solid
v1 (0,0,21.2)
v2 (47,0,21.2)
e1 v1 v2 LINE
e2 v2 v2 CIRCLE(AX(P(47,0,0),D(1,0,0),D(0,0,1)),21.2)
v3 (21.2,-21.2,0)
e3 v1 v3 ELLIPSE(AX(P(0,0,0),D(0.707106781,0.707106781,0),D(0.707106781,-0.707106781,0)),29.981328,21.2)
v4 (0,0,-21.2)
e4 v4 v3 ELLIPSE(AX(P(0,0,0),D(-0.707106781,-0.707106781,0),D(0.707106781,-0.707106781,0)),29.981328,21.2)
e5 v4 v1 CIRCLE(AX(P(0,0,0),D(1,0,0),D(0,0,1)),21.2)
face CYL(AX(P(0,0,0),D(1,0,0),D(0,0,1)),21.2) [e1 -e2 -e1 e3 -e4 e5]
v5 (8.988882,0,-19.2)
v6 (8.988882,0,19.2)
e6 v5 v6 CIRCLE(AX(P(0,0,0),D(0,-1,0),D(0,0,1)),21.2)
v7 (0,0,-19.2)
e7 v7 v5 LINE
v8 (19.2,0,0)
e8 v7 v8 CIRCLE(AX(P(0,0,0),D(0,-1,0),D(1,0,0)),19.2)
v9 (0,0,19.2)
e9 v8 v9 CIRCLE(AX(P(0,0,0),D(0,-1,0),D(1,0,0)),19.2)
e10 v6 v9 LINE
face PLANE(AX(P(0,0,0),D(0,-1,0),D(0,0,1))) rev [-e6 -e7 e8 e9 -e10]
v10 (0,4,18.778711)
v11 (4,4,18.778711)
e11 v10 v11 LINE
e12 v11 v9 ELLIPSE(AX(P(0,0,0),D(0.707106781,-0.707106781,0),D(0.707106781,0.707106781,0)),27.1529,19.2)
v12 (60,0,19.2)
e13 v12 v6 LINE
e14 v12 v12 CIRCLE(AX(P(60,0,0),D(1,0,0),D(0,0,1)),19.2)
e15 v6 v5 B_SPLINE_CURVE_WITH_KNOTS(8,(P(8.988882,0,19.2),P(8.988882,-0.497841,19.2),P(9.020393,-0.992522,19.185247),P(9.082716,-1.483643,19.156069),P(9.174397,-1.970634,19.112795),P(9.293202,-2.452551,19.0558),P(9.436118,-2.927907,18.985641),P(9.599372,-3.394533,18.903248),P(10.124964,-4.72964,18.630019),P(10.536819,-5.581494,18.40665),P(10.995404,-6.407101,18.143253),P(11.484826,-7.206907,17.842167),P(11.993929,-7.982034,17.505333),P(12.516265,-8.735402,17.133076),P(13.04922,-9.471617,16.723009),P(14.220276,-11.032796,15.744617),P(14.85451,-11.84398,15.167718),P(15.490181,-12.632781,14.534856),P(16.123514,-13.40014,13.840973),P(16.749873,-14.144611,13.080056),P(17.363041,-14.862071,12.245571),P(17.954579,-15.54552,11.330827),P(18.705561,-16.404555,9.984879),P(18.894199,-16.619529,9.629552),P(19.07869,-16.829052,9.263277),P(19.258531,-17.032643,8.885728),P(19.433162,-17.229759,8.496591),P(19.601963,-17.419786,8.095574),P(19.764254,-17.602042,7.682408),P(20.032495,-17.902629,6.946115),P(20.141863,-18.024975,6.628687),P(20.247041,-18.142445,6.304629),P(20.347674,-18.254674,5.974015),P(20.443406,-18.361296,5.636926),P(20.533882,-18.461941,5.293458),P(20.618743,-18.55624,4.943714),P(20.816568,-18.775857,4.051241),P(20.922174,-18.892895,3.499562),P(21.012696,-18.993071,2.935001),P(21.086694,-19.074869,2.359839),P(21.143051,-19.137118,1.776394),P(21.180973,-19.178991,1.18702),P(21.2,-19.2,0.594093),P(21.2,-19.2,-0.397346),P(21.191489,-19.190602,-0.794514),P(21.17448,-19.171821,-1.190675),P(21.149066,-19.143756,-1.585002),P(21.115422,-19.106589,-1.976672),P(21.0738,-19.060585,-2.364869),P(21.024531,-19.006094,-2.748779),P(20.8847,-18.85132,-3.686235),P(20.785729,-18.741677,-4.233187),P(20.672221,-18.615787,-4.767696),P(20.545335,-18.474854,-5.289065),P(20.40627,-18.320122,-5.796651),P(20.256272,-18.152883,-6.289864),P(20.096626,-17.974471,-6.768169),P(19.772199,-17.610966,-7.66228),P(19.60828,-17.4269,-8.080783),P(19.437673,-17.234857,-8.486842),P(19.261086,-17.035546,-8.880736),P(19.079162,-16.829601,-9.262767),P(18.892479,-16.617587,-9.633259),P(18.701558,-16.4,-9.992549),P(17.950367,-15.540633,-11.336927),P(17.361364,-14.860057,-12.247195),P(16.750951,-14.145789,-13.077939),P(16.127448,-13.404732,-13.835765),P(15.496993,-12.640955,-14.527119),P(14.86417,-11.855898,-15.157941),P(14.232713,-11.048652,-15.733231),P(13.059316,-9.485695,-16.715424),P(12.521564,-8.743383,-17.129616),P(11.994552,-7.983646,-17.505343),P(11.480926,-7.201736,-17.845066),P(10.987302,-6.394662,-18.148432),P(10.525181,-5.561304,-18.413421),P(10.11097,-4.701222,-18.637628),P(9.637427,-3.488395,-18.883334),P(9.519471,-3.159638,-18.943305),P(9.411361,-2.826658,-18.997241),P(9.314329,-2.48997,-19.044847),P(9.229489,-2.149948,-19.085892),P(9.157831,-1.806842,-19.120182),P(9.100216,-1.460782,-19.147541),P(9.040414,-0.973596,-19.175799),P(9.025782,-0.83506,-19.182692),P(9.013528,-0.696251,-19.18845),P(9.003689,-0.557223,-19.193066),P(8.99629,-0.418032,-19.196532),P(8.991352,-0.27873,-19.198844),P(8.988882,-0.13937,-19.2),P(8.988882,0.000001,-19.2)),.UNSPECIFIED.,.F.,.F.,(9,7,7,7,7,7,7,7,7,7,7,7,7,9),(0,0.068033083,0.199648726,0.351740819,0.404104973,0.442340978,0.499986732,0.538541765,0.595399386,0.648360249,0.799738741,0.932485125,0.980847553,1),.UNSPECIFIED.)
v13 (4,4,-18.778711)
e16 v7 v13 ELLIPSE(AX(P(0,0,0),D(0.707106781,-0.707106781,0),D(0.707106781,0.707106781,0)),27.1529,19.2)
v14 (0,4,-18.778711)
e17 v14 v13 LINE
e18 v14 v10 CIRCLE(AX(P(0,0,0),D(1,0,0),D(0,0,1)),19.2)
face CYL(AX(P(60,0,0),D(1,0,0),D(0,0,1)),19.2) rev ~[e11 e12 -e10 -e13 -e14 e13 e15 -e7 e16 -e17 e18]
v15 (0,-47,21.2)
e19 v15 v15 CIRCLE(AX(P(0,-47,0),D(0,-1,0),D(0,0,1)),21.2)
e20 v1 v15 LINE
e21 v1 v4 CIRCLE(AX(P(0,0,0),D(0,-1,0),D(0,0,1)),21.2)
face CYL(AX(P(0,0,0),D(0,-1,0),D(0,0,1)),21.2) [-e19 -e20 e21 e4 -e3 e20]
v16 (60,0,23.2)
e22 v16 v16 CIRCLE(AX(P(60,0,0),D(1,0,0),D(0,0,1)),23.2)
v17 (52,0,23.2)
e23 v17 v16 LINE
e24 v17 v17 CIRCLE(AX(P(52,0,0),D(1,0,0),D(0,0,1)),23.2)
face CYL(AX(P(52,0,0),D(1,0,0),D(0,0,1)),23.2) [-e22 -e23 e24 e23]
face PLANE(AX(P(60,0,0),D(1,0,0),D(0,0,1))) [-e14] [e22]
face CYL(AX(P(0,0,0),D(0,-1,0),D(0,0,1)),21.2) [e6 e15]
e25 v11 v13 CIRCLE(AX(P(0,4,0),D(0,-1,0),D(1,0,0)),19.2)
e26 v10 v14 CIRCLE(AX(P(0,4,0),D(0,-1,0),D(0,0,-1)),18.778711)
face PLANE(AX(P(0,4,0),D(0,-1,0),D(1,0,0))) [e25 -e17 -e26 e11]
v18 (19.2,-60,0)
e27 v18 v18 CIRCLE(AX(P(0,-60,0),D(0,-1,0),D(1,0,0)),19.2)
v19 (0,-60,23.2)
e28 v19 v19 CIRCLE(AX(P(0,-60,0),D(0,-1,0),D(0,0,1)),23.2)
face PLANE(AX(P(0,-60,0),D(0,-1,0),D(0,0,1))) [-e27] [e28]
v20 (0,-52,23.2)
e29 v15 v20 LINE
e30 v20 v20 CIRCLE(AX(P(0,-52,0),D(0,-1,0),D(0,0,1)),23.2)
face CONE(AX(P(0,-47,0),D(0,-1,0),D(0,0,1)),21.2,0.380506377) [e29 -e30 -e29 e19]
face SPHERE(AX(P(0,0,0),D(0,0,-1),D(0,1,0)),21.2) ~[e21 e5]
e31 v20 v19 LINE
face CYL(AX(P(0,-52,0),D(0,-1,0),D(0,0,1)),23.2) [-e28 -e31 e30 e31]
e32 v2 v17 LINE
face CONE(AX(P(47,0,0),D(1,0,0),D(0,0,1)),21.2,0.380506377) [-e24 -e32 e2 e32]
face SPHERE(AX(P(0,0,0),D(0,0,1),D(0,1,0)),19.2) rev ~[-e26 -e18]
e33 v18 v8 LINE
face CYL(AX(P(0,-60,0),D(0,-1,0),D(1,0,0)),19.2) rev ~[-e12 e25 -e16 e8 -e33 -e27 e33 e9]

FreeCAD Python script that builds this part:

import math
import FreeCAD as App
import Part
import Sketcher

V = App.Vector


def add_polygon(sketch, points):
    """Adds a closed chain of lines whose ends are joined by coincident constraints."""
    first, n = sketch.GeometryCount, len(points)
    for a, b in zip(points, points[1:] + points[:1]):
        sketch.addGeometry(Part.LineSegment(App.Vector(*a, 0), App.Vector(*b, 0)), False)
    for i in range(n):
        sketch.addConstraint(Sketcher.Constraint("Coincident", first + i, 2, first + (i + 1) % n, 1))

doc = App.newDocument("Part")
params = doc.addObject("Spreadsheet::Sheet", "Params")
for row, (alias, value) in enumerate([
    ("sketch1_width", "60 mm"),
    ("sketch1_width2", "8 mm"),
    ("sketch1_width3", "47 mm"),
    ("sketch1_height", "21.2 mm"),
    ("sketch1_height2", "23.2 mm"),
    ("revolution_angle", "360 deg"),
    ("sketch2_diameter", "38.4 mm"),
    ("sketch4_radius", "21.2 mm"),
    ("sketch4_radius2", "19.2 mm"),
    ("revolution2_angle", "90 deg"),
    ("sketch5_width", "60 mm"),
    ("sketch5_width2", "8 mm"),
    ("sketch5_width3", "47 mm"),
    ("sketch5_height", "21.2 mm"),
    ("sketch5_height2", "23.2 mm"),
    ("revolution3_angle", "360 deg"),
    ("sketch6_diameter", "38.4 mm"),
    ("pocket3_length", "64 mm"),
], start=1):
    params.set(f"A{row}", alias)
    params.set(f"B{row}", "=" + value)
    params.setAlias(f"B{row}", alias)

body = doc.addObject("PartDesign::Body", "Body")

# Sketch on XZ plane
sketch1 = body.newObject("Sketcher::SketchObject", "Sketch")
sketch1.AttachmentSupport = (doc.getObject("XZ_Plane"), [""])
sketch1.MapMode = "FlatFace"
add_polygon(sketch1, [(0, 21), (0, 0), (60, 0), (60, 23), (52, 23), (47, 21)])  # lines 0-5
sketch1.addConstraint([
    Sketcher.Constraint("Vertical", 0),
    Sketcher.Constraint("Horizontal", 1),
    Sketcher.Constraint("Vertical", 2),
    Sketcher.Constraint("Horizontal", 3),
    Sketcher.Constraint("Horizontal", 5),
    Sketcher.Constraint("Coincident", 0, 2, -1, 1),
    Sketcher.Constraint("DistanceX", 1, 1, 1, 2, 60.0),
    Sketcher.Constraint("DistanceX", 3, 2, 3, 1, 8.0),
    Sketcher.Constraint("DistanceX", 5, 2, 5, 1, 47.0),
    Sketcher.Constraint("DistanceY", 0, 2, 0, 1, 21.2),
    Sketcher.Constraint("DistanceY", 2, 1, 2, 2, 23.2),
])
sketch1.setExpression("Constraints[12]", "Params.sketch1_width")
sketch1.setExpression("Constraints[13]", "Params.sketch1_width2")
sketch1.setExpression("Constraints[14]", "Params.sketch1_width3")
sketch1.setExpression("Constraints[15]", "Params.sketch1_height")
sketch1.setExpression("Constraints[16]", "Params.sketch1_height2")
revolution = body.newObject("PartDesign::Revolution", "Revolution")
revolution.Profile = sketch1
revolution.ReferenceAxis = (sketch1, ["H_Axis"])
revolution.setExpression("Angle", "Params.revolution_angle")

# Sketch on YZ plane
sketch2 = body.newObject("Sketcher::SketchObject", "Sketch001")
sketch2.AttachmentSupport = (doc.getObject("YZ_Plane"), [""])
sketch2.MapMode = "FlatFace"
sketch2.AttachmentOffset = App.Placement(V(0, 0, 60), App.Rotation())
sketch2.addGeometry(Part.Circle(V(0, 0, 0), V(0, 0, 1), 19), False)
sketch2.addConstraint([
    Sketcher.Constraint("Coincident", 0, 3, -1, 1),
    Sketcher.Constraint("Diameter", 0, 38.4),
])
sketch2.setExpression("Constraints[1]", "Params.sketch2_diameter")
pocket1 = body.newObject("PartDesign::Pocket", "Pocket")
pocket1.Profile = sketch2
pocket1.Type = "ThroughAll"

# Sketch on XY plane
sketch3 = body.newObject("Sketcher::SketchObject", "Sketch002")
sketch3.AttachmentSupport = (doc.getObject("XY_Plane"), [""])
sketch3.MapMode = "FlatFace"
add_polygon(sketch3, [(36, -36), (0, 0), (0, -36)])  # lines 0-2
sketch3.addConstraint([
    Sketcher.Constraint("Vertical", 1),
    Sketcher.Constraint("Horizontal", 2),
    Sketcher.Constraint("Coincident", 0, 2, -1, 1),
    Sketcher.Constraint("Equal", 2, 1),
    Sketcher.Constraint("Distance", 0, 50.32191),
])
pocket2 = body.newObject("PartDesign::Pocket", "Pocket001")
pocket2.Profile = sketch3
pocket2.Type = "ThroughAll"
pocket2.Midplane = True

# Sketch on YZ plane
sketch4 = body.newObject("Sketcher::SketchObject", "Sketch003")
sketch4.AttachmentSupport = (doc.getObject("YZ_Plane"), [""])
sketch4.MapMode = "FlatFace"
sketch4.addGeometry([
    Part.LineSegment(V(0, 19.2, 0), V(0, 21.2, 0)),
    Part.ArcOfCircle(Part.Circle(V(0, 0, 0), V(0, 0, 1), 21.2), math.radians(-90), math.radians(90)),
    Part.LineSegment(V(0, -21.2, 0), V(0, -19.2, 0)),
    Part.ArcOfCircle(Part.Circle(V(0, 0, 0), V(0, 0, 1), 19.2), math.radians(-90), math.radians(90)),
], False)
sketch4.addConstraint([
    Sketcher.Constraint("Coincident", 0, 2, 1, 2),
    Sketcher.Constraint("Coincident", 1, 1, 2, 1),
    Sketcher.Constraint("Coincident", 2, 2, 3, 1),
    Sketcher.Constraint("Coincident", 3, 2, 0, 1),
    Sketcher.Constraint("Vertical", 0),
    Sketcher.Constraint("Vertical", 2),
    Sketcher.Constraint("Coincident", 1, 3, -1, 1),
    Sketcher.Constraint("Coincident", 3, 3, -1, 1),
    Sketcher.Constraint("PointOnObject", 0, 2, -2),
    Sketcher.Constraint("PointOnObject", 1, 1, -2),
    Sketcher.Constraint("Radius", 1, 21.2),
    Sketcher.Constraint("Radius", 3, 19.2),
])
sketch4.setExpression("Constraints[10]", "Params.sketch4_radius")
sketch4.setExpression("Constraints[11]", "Params.sketch4_radius2")
revolution2 = body.newObject("PartDesign::Revolution", "Revolution001")
revolution2.Profile = sketch4
revolution2.ReferenceAxis = (sketch4, ["V_Axis"])
revolution2.setExpression("Angle", "Params.revolution2_angle")

# Sketch on YZ plane
sketch5 = body.newObject("Sketcher::SketchObject", "Sketch004")
sketch5.AttachmentSupport = (doc.getObject("YZ_Plane"), [""])
sketch5.MapMode = "FlatFace"
add_polygon(sketch5, [(0, 21), (0, 0), (-60, 0), (-60, 23), (-52, 23), (-47, 21)])  # lines 0-5
sketch5.addConstraint([
    Sketcher.Constraint("Vertical", 0),
    Sketcher.Constraint("Horizontal", 1),
    Sketcher.Constraint("Vertical", 2),
    Sketcher.Constraint("Horizontal", 3),
    Sketcher.Constraint("Horizontal", 5),
    Sketcher.Constraint("Coincident", 0, 2, -1, 1),
    Sketcher.Constraint("DistanceX", 1, 2, 1, 1, 60.0),
    Sketcher.Constraint("DistanceX", 3, 1, 3, 2, 8.0),
    Sketcher.Constraint("DistanceX", 5, 1, 5, 2, 47.0),
    Sketcher.Constraint("DistanceY", 0, 2, 0, 1, 21.2),
    Sketcher.Constraint("DistanceY", 2, 1, 2, 2, 23.2),
])
sketch5.setExpression("Constraints[12]", "Params.sketch5_width")
sketch5.setExpression("Constraints[13]", "Params.sketch5_width2")
sketch5.setExpression("Constraints[14]", "Params.sketch5_width3")
sketch5.setExpression("Constraints[15]", "Params.sketch5_height")
sketch5.setExpression("Constraints[16]", "Params.sketch5_height2")
revolution3 = body.newObject("PartDesign::Revolution", "Revolution002")
revolution3.Profile = sketch5
revolution3.ReferenceAxis = (sketch5, ["H_Axis"])
revolution3.setExpression("Angle", "Params.revolution3_angle")

# Sketch on XZ plane
sketch6 = body.newObject("Sketcher::SketchObject", "Sketch005")
sketch6.AttachmentSupport = (doc.getObject("XZ_Plane"), [""])
sketch6.MapMode = "FlatFace"
sketch6.AttachmentOffset = App.Placement(V(0, 0, 60), App.Rotation())
sketch6.addGeometry(Part.Circle(V(0, 0, 0), V(0, 0, 1), 19), False)
sketch6.addConstraint([
    Sketcher.Constraint("Coincident", 0, 3, -1, 1),
    Sketcher.Constraint("Diameter", 0, 38.4),
])
sketch6.setExpression("Constraints[1]", "Params.sketch6_diameter")
pocket3 = body.newObject("PartDesign::Pocket", "Pocket002")
pocket3.Profile = sketch6
pocket3.setExpression("Length", "Params.pocket3_length")

doc.recompute()
